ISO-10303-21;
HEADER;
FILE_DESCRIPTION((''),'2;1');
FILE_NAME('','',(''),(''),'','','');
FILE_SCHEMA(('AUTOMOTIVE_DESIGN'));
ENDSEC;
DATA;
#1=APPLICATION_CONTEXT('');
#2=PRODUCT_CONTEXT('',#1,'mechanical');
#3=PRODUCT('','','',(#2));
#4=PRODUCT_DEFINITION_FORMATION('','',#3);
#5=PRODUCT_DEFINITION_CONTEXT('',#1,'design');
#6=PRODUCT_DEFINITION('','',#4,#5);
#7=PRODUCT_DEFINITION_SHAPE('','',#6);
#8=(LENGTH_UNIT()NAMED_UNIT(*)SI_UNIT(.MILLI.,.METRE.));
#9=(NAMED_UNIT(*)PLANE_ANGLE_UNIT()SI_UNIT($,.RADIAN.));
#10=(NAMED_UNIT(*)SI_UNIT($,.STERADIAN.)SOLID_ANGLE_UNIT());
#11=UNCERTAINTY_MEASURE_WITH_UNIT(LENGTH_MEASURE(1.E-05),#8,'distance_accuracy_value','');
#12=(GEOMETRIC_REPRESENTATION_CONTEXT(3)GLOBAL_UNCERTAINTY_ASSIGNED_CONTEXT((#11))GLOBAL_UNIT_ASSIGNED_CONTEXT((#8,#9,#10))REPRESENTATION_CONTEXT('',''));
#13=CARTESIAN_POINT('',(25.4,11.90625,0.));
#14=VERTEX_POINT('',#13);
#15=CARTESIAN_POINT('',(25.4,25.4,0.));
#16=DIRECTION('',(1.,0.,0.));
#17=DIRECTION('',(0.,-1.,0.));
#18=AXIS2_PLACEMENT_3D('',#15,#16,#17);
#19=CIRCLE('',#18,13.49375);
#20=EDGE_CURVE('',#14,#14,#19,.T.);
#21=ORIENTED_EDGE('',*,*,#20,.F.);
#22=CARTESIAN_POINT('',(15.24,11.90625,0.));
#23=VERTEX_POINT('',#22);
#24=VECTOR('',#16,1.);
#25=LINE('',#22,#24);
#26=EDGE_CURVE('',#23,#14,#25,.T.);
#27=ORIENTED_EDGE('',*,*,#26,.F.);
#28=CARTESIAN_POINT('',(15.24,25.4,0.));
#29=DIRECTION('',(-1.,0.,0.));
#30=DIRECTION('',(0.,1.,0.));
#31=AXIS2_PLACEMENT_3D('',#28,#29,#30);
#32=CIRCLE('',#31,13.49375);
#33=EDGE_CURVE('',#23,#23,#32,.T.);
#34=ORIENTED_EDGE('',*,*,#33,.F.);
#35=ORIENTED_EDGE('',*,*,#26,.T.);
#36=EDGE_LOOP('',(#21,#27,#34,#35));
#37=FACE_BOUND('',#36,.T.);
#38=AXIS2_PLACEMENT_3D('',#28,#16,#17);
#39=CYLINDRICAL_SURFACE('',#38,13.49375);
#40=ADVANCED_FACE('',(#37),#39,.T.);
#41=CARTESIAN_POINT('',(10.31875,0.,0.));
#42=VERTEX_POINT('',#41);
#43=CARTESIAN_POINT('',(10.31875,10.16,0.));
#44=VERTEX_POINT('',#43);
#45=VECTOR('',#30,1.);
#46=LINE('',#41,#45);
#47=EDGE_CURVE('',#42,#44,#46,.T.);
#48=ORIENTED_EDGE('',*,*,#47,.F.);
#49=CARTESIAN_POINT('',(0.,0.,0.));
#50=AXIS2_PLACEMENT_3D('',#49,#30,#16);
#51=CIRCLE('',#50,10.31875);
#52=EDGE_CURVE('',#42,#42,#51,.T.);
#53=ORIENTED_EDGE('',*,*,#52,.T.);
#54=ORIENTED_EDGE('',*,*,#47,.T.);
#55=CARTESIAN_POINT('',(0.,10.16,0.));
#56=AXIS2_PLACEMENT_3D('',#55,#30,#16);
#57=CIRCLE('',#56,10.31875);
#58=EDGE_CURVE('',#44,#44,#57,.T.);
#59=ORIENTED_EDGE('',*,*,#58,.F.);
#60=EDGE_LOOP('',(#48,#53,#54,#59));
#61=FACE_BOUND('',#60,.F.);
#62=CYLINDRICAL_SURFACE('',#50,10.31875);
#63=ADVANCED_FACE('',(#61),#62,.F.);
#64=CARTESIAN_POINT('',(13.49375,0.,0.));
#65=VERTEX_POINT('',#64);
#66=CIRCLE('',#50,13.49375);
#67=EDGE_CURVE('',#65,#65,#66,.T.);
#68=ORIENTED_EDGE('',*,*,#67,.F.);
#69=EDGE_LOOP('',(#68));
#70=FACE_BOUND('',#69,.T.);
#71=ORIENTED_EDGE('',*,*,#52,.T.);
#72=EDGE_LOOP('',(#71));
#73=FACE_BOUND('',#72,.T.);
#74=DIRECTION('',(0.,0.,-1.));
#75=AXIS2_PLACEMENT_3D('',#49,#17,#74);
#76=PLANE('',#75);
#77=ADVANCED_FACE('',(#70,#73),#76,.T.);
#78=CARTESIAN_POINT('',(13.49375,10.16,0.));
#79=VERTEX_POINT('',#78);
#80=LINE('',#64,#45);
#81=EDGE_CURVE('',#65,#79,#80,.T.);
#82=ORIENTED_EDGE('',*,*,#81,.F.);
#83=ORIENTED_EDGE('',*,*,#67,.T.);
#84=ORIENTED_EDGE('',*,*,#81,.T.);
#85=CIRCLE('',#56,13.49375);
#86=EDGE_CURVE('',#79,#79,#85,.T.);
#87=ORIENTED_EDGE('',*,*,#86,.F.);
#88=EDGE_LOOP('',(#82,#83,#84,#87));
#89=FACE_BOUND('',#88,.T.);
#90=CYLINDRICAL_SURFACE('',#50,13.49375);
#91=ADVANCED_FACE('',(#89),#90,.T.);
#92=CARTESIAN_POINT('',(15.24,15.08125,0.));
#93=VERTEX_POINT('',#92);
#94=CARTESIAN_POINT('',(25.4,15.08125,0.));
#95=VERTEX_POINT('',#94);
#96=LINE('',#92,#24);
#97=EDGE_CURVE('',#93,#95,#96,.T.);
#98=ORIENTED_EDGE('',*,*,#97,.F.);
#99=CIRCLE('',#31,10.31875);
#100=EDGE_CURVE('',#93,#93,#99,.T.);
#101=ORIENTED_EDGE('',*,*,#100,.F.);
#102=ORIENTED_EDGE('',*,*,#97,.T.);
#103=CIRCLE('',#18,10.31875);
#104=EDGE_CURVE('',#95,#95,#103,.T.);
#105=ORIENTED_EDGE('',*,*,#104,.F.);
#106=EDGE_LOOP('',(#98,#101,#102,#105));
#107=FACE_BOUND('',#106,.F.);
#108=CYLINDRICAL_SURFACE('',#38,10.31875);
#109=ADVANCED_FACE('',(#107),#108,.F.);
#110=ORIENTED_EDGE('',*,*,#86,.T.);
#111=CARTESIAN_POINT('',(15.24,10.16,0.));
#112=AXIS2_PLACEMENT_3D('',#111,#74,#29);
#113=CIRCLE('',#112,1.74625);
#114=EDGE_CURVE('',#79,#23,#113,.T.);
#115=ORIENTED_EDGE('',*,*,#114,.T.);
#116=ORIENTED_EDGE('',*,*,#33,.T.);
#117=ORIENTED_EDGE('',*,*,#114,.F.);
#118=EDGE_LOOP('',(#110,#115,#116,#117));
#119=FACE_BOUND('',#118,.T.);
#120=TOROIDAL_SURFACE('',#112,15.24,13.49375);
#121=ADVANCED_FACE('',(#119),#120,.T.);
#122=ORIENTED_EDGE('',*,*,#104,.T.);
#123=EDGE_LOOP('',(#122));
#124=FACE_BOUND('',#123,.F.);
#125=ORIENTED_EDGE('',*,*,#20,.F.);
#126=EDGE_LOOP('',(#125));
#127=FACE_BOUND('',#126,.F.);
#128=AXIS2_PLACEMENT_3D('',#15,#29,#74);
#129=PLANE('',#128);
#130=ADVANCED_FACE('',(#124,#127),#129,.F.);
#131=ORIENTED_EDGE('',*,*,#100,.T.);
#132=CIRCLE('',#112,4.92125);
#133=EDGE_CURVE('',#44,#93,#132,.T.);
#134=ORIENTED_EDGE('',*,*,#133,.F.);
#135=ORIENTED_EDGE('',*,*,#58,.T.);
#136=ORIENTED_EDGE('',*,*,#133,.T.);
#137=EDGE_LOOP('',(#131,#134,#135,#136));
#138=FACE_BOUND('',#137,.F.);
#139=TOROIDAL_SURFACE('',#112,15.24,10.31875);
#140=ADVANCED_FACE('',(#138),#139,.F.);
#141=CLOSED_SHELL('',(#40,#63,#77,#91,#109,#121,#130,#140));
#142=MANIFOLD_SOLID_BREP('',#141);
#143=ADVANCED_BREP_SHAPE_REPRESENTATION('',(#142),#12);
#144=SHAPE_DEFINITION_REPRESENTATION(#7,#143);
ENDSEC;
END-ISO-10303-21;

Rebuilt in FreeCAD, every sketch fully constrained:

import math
import FreeCAD as App
import Part
import Sketcher
from FreeCAD import Vector
Q = App.Units.Quantity


def faces_at(feature, points):
    """Names of the faces that lie closest to the given points."""
    faces = feature.Shape.Faces
    near = lambda p: min(range(len(faces)), key=lambda i: faces[i].distToShape(Part.Vertex(*p))[0])
    return sorted({f"Face{near(p) + 1}" for p in points})

doc = App.newDocument("Part")
params = doc.addObject("Spreadsheet::Sheet", "Params")
for row, (alias, value) in enumerate([
    ("sketch1_diameter", "1.0625 in"),
    ("sketch2_radius", "0.6 in"),
    ("sketch2_width", "0.4 in"),
    ("thickness_wall", "0.125 in"),
], start=1):
    params.set(f"A{row}", alias)
    params.set(f"B{row}", "=" + value)
    params.setAlias(f"B{row}", alias)

body = doc.addObject("PartDesign::Body", "Body")

# Sketch on XZ plane
sketch1 = doc.addObject("Sketcher::SketchObject", "Sketch")
body.addObject(sketch1)
sketch1.AttachmentSupport = (doc.XZ_Plane, [""])
sketch1.MapMode = "FlatFace"
sketch1.addGeometry(Part.Circle(Vector(0, 0, 0), Vector(0, 0, 1), 13), False)
sketch1.addConstraint([
    Sketcher.Constraint("Coincident", 0, 3, -1, 1),
    Sketcher.Constraint("Diameter", 0, Q("1.0625 in")),
])
sketch1.setExpression("Constraints[1]", "Params.sketch1_diameter")

# Sketch on XY plane
sketch2 = doc.addObject("Sketcher::SketchObject", "Sketch001")
body.addObject(sketch2)
sketch2.AttachmentSupport = (doc.XY_Plane, [""])
sketch2.MapMode = "FlatFace"
sketch2.addGeometry([
    Part.LineSegment(Vector(0, 0, 0), Vector(0, 10, 0)),
    Part.ArcOfCircle(Part.Circle(Vector(15, 10, 0), Vector(0, 0, 1), 15), math.radians(90), math.radians(180)),
    Part.LineSegment(Vector(15, 25, 0), Vector(25, 25, 0)),
], False)
sketch2.addConstraint([
    Sketcher.Constraint("Tangent", 0, 2, 1, 2),
    Sketcher.Constraint("Tangent", 1, 1, 2, 1),
    Sketcher.Constraint("Vertical", 0),
    Sketcher.Constraint("Horizontal", 2),
    Sketcher.Constraint("Coincident", 0, 1, -1, 1),
    Sketcher.Constraint("Equal", 2, 0),
    Sketcher.Constraint("Radius", 1, Q("0.6 in")),
    Sketcher.Constraint("DistanceX", 2, 1, 2, 2, Q("0.4 in")),
])
sketch2.setExpression("Constraints[6]", "Params.sketch2_radius")
sketch2.setExpression("Constraints[7]", "Params.sketch2_width")
doc.recompute()

additivepipe = doc.addObject("PartDesign::AdditivePipe", "AdditivePipe")
body.addObject(additivepipe)
additivepipe.Profile = sketch1
additivepipe.Spine = (sketch2, ["Edge1", "Edge2", "Edge3"])
doc.recompute()

thickness = doc.addObject("PartDesign::Thickness", "Thickness")
body.addObject(thickness)
thickness.Base = (additivepipe, faces_at(additivepipe, [(0, 0, 0), (25.4, 25.4, 0)]))
thickness.setExpression("Value", "Params.thickness_wall")
thickness.Reversed = True
thickness.Join = "Arc"

doc.recompute()
